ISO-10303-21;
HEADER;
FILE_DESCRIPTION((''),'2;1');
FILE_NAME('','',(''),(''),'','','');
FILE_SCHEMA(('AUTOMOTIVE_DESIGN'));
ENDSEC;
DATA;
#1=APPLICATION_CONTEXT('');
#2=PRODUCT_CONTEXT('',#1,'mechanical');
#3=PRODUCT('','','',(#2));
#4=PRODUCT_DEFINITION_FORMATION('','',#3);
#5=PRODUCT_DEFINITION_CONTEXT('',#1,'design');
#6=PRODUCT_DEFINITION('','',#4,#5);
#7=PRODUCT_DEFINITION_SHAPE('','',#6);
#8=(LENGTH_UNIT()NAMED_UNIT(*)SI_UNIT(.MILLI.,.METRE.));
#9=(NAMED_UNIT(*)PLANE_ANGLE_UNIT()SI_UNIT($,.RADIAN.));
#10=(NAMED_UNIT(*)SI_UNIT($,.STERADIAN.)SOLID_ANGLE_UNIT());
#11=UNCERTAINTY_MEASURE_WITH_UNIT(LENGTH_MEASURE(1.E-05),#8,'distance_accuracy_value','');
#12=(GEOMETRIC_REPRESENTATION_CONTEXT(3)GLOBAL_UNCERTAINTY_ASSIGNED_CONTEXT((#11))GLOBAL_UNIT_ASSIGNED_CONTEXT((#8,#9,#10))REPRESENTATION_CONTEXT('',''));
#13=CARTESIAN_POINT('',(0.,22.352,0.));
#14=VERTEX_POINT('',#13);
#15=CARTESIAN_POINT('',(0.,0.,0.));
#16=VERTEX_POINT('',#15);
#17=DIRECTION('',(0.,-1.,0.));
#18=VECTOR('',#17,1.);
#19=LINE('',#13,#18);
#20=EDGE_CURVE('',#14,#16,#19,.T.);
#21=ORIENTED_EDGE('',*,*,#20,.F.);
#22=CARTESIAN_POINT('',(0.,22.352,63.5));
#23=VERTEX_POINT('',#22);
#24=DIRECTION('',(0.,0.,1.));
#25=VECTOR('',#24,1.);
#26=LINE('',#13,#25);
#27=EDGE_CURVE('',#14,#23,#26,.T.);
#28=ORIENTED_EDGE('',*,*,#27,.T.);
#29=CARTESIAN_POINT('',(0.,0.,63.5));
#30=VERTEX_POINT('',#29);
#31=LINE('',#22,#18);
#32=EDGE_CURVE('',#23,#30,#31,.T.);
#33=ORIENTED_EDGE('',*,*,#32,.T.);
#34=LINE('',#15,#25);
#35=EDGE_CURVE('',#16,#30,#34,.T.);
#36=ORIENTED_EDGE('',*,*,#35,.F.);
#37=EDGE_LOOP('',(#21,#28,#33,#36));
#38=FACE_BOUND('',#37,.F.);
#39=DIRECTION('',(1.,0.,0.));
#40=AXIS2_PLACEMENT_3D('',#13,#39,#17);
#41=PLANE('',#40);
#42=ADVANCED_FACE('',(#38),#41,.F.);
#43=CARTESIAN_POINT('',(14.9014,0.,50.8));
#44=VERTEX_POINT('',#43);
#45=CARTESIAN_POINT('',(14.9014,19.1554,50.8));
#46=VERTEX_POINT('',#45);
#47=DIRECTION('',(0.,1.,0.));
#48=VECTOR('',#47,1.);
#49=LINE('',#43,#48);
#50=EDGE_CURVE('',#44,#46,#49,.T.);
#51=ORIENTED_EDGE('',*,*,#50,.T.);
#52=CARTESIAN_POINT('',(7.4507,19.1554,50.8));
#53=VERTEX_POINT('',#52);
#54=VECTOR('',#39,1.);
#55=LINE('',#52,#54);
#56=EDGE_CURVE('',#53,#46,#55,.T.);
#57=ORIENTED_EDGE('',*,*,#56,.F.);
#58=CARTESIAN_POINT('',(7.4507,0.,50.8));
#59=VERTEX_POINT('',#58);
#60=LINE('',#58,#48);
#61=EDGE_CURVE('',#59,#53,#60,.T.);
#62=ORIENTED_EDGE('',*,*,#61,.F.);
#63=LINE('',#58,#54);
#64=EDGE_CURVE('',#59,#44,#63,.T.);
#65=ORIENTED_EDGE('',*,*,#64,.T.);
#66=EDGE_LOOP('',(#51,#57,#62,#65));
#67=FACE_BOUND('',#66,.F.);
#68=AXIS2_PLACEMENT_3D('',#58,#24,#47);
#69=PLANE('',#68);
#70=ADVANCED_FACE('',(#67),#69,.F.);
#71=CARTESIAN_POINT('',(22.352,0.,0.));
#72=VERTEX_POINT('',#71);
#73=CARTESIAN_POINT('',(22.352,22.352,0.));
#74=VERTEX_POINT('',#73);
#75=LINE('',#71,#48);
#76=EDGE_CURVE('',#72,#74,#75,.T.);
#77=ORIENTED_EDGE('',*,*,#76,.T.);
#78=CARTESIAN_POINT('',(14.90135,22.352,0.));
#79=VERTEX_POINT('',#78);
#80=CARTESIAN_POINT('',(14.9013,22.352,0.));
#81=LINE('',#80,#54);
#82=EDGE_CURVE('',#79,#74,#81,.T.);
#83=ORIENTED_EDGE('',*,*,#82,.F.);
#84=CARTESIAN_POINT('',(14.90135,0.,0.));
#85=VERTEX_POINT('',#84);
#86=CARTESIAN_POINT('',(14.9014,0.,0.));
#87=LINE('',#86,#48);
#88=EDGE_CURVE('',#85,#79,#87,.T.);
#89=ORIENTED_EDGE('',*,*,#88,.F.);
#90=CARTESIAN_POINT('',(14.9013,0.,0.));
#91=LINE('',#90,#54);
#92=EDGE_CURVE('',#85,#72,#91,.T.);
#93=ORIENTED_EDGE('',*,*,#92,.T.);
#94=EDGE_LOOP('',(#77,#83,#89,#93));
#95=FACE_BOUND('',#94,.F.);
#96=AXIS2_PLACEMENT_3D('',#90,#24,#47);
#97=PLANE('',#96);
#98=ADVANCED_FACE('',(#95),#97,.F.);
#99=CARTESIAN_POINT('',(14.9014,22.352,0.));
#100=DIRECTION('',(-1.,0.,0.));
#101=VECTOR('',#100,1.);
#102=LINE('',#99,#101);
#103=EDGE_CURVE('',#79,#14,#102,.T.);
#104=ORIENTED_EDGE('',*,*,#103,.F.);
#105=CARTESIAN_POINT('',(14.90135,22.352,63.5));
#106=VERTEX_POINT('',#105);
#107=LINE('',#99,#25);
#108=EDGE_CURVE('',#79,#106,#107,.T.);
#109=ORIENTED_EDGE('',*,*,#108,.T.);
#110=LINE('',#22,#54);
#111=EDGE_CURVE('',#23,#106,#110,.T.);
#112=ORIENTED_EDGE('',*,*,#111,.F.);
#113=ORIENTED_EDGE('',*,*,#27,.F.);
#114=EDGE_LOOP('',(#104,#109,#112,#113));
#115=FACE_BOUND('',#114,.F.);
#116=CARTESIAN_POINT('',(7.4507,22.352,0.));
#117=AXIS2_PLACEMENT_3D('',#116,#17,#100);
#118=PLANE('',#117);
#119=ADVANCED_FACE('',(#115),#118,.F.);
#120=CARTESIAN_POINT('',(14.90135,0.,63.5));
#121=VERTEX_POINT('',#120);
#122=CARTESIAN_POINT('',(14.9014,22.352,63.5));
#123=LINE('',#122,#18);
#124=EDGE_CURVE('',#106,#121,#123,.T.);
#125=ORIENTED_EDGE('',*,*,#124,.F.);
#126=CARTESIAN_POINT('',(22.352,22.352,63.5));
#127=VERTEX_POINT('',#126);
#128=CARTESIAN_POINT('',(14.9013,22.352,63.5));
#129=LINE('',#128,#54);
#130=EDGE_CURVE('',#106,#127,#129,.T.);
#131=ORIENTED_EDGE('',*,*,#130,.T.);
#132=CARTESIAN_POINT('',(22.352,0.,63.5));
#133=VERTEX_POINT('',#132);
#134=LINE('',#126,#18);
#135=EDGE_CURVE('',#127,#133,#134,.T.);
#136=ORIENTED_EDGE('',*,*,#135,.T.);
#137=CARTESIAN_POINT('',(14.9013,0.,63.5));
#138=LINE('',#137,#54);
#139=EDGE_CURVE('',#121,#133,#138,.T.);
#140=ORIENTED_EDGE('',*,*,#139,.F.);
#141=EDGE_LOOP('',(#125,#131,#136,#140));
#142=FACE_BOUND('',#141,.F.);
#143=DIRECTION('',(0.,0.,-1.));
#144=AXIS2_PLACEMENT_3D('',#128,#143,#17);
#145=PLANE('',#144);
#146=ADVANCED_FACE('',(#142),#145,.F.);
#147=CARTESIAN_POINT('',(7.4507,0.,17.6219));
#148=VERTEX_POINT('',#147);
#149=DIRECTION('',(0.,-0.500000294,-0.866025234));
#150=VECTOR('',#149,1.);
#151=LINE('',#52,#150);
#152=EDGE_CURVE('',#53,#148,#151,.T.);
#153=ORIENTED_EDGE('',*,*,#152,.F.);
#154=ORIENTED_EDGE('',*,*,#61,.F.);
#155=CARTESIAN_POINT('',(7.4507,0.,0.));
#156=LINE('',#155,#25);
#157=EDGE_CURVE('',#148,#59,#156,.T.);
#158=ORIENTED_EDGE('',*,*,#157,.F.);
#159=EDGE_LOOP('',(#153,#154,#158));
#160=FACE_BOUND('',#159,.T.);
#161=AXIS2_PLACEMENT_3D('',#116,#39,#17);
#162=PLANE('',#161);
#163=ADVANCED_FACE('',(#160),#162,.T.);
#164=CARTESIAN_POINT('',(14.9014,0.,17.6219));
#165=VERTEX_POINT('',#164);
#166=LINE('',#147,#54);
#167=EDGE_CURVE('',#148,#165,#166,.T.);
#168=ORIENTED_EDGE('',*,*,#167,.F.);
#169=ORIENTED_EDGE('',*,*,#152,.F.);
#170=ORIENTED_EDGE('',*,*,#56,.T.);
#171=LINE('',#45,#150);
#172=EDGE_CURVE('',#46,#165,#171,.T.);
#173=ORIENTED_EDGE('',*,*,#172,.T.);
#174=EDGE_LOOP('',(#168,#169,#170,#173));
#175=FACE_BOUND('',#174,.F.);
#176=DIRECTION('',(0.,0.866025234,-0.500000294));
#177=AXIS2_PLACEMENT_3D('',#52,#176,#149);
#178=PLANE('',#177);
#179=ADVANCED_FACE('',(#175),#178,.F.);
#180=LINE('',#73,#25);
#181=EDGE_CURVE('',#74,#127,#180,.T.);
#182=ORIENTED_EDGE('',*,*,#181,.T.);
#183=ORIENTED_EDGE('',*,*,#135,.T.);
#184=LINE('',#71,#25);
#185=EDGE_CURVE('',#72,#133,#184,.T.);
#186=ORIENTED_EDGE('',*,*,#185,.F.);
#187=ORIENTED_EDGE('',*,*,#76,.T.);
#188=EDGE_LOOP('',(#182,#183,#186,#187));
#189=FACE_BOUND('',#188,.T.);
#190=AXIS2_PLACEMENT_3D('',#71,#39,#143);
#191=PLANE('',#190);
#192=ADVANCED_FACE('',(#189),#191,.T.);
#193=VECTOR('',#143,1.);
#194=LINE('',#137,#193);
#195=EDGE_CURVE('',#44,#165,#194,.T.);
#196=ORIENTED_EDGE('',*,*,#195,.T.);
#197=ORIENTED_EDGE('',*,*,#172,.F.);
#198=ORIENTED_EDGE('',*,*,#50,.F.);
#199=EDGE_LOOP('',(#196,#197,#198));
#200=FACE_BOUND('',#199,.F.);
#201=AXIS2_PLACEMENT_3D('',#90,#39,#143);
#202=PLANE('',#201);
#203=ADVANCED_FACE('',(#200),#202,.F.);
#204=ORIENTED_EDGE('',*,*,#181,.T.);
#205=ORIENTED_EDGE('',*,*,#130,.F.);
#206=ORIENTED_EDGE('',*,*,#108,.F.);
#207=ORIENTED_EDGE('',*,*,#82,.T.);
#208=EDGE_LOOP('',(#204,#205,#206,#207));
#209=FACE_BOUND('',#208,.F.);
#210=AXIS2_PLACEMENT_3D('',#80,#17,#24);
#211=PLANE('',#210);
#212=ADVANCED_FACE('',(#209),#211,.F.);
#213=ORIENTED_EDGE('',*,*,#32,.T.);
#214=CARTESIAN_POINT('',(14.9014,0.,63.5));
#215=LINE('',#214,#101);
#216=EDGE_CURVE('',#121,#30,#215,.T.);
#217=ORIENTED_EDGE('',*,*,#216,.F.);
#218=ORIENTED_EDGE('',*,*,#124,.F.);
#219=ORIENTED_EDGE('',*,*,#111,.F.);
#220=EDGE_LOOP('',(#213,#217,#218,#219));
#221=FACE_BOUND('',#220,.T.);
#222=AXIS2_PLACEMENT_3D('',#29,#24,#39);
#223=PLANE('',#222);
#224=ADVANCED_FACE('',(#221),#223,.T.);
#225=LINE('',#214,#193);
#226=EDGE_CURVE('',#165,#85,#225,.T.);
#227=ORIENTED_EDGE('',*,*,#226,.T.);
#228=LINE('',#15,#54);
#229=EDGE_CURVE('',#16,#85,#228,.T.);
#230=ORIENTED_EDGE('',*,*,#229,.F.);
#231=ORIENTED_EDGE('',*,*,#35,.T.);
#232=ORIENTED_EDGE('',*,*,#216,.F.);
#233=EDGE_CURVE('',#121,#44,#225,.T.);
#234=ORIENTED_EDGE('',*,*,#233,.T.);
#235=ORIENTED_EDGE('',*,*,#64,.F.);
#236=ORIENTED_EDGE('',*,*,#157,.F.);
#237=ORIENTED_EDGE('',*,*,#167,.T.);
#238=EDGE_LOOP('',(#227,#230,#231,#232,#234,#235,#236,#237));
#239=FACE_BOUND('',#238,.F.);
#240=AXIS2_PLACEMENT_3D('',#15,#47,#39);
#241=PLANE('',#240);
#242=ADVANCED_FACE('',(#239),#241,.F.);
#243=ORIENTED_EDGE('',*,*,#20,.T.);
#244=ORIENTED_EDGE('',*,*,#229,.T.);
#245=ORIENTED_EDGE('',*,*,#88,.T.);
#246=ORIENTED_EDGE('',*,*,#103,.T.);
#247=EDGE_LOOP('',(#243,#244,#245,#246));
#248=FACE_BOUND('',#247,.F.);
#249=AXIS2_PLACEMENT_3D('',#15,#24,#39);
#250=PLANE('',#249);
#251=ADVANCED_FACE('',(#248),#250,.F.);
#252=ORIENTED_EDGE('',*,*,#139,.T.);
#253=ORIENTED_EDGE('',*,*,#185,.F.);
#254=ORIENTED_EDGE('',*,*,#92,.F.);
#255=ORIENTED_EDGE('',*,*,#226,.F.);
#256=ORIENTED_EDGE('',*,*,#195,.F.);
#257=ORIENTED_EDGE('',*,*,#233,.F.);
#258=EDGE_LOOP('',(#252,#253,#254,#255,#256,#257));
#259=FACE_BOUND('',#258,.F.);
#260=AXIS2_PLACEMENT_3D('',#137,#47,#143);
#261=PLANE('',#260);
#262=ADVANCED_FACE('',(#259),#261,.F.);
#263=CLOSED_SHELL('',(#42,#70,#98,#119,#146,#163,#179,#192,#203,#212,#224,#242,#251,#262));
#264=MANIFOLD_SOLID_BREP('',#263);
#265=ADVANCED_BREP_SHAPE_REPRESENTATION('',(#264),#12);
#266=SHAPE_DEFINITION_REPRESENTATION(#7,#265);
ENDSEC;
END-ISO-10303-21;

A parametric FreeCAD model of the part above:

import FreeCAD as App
import Part
import Sketcher
Q = App.Units.Quantity

doc = App.newDocument("Part")
body = doc.addObject("PartDesign::Body", "Body")

# Sketch on XY plane
sketch1 = body.newObject("Sketcher::SketchObject", "Sketch")
sketch1.AttachmentSupport = (doc.getObject("XY_Plane"), [""])
sketch1.MapMode = "FlatFace"
sketch1.addGeometry(Part.LineSegment(App.Vector(0, 22.352, 0), App.Vector(0, 0, 0)), False)
sketch1.addGeometry(Part.LineSegment(App.Vector(0, 0, 0), App.Vector(7.4507, 0, 0)), False)
sketch1.addGeometry(Part.LineSegment(App.Vector(7.4507, 0, 0), App.Vector(7.4507, 22.352, 0)), False)
sketch1.addGeometry(Part.LineSegment(App.Vector(7.4507, 22.352, 0), App.Vector(0, 22.352, 0)), False)
sketch1.addConstraint(Sketcher.Constraint("Coincident", 0, 2, 1, 1))
sketch1.addConstraint(Sketcher.Constraint("Coincident", 1, 2, 2, 1))
sketch1.addConstraint(Sketcher.Constraint("Coincident", 2, 2, 3, 1))
sketch1.addConstraint(Sketcher.Constraint("Coincident", 3, 2, 0, 1))
sketch1.addConstraint(Sketcher.Constraint("Vertical", 0))
sketch1.addConstraint(Sketcher.Constraint("Horizontal", 1))
sketch1.addConstraint(Sketcher.Constraint("Vertical", 2))
sketch1.addConstraint(Sketcher.Constraint("Horizontal", 3))
sketch1.addConstraint(Sketcher.Constraint("Coincident", 0, 2, -1, 1))
sketch1.addConstraint(Sketcher.Constraint("DistanceY", 0, 2, 0, 1, Q("0.88 in")))
sketch1.addConstraint(Sketcher.Constraint("DistanceX", 1, 1, 1, 2, 7.4507))
pad1 = body.newObject("PartDesign::Pad", "Pad")
pad1.Profile = sketch1
pad1.Length = Q("2.5 in")

# Sketch on YZ plane
sketch2 = body.newObject("Sketcher::SketchObject", "Sketch001")
sketch2.AttachmentSupport = (doc.getObject("YZ_Plane"), [""])
sketch2.MapMode = "FlatFace"
sketch2.AttachmentOffset = App.Placement(App.Vector(0, 0, 7.4507), App.Rotation())
sketch2.addGeometry(Part.LineSegment(App.Vector(0, 17.6219, 0), App.Vector(0, 0, 0)), False)
sketch2.addGeometry(Part.LineSegment(App.Vector(0, 0, 0), App.Vector(22.352, 0, 0)), False)
sketch2.addGeometry(Part.LineSegment(App.Vector(22.352, 0, 0), App.Vector(22.352, 63.5, 0)), False)
sketch2.addGeometry(Part.LineSegment(App.Vector(22.352, 63.5, 0), App.Vector(0, 63.5, 0)), False)
sketch2.addGeometry(Part.LineSegment(App.Vector(0, 63.5, 0), App.Vector(0, 50.8, 0)), False)
sketch2.addGeometry(Part.LineSegment(App.Vector(0, 50.8, 0), App.Vector(19.1554, 50.8, 0)), False)
sketch2.addGeometry(Part.LineSegment(App.Vector(19.1554, 50.8, 0), App.Vector(0, 17.6219, 0)), False)
sketch2.addConstraint(Sketcher.Constraint("Coincident", 0, 2, 1, 1))
sketch2.addConstraint(Sketcher.Constraint("Coincident", 1, 2, 2, 1))
sketch2.addConstraint(Sketcher.Constraint("Coincident", 2, 2, 3, 1))
sketch2.addConstraint(Sketcher.Constraint("Coincident", 3, 2, 4, 1))
sketch2.addConstraint(Sketcher.Constraint("Coincident", 4, 2, 5, 1))
sketch2.addConstraint(Sketcher.Constraint("Coincident", 5, 2, 6, 1))
sketch2.addConstraint(Sketcher.Constraint("Coincident", 6, 2, 0, 1))
sketch2.addConstraint(Sketcher.Constraint("Vertical", 0))
sketch2.addConstraint(Sketcher.Constraint("Horizontal", 1))
sketch2.addConstraint(Sketcher.Constraint("Vertical", 2))
sketch2.addConstraint(Sketcher.Constraint("Horizontal", 3))
sketch2.addConstraint(Sketcher.Constraint("Vertical", 4))
sketch2.addConstraint(Sketcher.Constraint("Horizontal", 5))
sketch2.addConstraint(Sketcher.Constraint("Coincident", 0, 2, -1, 1))
sketch2.addConstraint(Sketcher.Constraint("PointOnObject", 3, 2, -2))
sketch2.addConstraint(Sketcher.Constraint("DistanceY", 4, 2, 4, 1, Q("0.5 in")))
sketch2.addConstraint(Sketcher.Constraint("DistanceY", 2, 1, 2, 2, Q("2.5 in")))
sketch2.addConstraint(Sketcher.Constraint("Angle", 6, Q("-120 deg")))
sketch2.addConstraint(Sketcher.Constraint("DistanceX", 1, 1, 1, 2, Q("0.88 in")))
sketch2.addConstraint(Sketcher.Constraint("Distance", 6, Q("1.5083 in")))
pad2 = body.newObject("PartDesign::Pad", "Pad001")
pad2.Profile = sketch2
pad2.Length = 7.4507

# Sketch on YZ plane
sketch3 = body.newObject("Sketcher::SketchObject", "Sketch002")
sketch3.AttachmentSupport = (doc.getObject("YZ_Plane"), [""])
sketch3.MapMode = "FlatFace"
sketch3.AttachmentOffset = App.Placement(App.Vector(0, 0, 14.9013), App.Rotation())
sketch3.addGeometry(Part.LineSegment(App.Vector(0, 63.5, 0), App.Vector(0, 0, 0)), False)
sketch3.addGeometry(Part.LineSegment(App.Vector(0, 0, 0), App.Vector(22.352, 0, 0)), False)
sketch3.addGeometry(Part.LineSegment(App.Vector(22.352, 0, 0), App.Vector(22.352, 63.5, 0)), False)
sketch3.addGeometry(Part.LineSegment(App.Vector(22.352, 63.5, 0), App.Vector(0, 63.5, 0)), False)
sketch3.addConstraint(Sketcher.Constraint("Coincident", 0, 2, 1, 1))
sketch3.addConstraint(Sketcher.Constraint("Coincident", 1, 2, 2, 1))
sketch3.addConstraint(Sketcher.Constraint("Coincident", 2, 2, 3, 1))
sketch3.addConstraint(Sketcher.Constraint("Coincident", 3, 2, 0, 1))
sketch3.addConstraint(Sketcher.Constraint("Vertical", 0))
sketch3.addConstraint(Sketcher.Constraint("Horizontal", 1))
sketch3.addConstraint(Sketcher.Constraint("Vertical", 2))
sketch3.addConstraint(Sketcher.Constraint("Horizontal", 3))
sketch3.addConstraint(Sketcher.Constraint("Coincident", 0, 2, -1, 1))
sketch3.addConstraint(Sketcher.Constraint("DistanceY", 0, 2, 0, 1, Q("2.5 in")))
sketch3.addConstraint(Sketcher.Constraint("DistanceX", 1, 1, 1, 2, Q("0.88 in")))
pad3 = body.newObject("PartDesign::Pad", "Pad002")
pad3.Profile = sketch3
pad3.Length = 7.4507

doc.recompute()
